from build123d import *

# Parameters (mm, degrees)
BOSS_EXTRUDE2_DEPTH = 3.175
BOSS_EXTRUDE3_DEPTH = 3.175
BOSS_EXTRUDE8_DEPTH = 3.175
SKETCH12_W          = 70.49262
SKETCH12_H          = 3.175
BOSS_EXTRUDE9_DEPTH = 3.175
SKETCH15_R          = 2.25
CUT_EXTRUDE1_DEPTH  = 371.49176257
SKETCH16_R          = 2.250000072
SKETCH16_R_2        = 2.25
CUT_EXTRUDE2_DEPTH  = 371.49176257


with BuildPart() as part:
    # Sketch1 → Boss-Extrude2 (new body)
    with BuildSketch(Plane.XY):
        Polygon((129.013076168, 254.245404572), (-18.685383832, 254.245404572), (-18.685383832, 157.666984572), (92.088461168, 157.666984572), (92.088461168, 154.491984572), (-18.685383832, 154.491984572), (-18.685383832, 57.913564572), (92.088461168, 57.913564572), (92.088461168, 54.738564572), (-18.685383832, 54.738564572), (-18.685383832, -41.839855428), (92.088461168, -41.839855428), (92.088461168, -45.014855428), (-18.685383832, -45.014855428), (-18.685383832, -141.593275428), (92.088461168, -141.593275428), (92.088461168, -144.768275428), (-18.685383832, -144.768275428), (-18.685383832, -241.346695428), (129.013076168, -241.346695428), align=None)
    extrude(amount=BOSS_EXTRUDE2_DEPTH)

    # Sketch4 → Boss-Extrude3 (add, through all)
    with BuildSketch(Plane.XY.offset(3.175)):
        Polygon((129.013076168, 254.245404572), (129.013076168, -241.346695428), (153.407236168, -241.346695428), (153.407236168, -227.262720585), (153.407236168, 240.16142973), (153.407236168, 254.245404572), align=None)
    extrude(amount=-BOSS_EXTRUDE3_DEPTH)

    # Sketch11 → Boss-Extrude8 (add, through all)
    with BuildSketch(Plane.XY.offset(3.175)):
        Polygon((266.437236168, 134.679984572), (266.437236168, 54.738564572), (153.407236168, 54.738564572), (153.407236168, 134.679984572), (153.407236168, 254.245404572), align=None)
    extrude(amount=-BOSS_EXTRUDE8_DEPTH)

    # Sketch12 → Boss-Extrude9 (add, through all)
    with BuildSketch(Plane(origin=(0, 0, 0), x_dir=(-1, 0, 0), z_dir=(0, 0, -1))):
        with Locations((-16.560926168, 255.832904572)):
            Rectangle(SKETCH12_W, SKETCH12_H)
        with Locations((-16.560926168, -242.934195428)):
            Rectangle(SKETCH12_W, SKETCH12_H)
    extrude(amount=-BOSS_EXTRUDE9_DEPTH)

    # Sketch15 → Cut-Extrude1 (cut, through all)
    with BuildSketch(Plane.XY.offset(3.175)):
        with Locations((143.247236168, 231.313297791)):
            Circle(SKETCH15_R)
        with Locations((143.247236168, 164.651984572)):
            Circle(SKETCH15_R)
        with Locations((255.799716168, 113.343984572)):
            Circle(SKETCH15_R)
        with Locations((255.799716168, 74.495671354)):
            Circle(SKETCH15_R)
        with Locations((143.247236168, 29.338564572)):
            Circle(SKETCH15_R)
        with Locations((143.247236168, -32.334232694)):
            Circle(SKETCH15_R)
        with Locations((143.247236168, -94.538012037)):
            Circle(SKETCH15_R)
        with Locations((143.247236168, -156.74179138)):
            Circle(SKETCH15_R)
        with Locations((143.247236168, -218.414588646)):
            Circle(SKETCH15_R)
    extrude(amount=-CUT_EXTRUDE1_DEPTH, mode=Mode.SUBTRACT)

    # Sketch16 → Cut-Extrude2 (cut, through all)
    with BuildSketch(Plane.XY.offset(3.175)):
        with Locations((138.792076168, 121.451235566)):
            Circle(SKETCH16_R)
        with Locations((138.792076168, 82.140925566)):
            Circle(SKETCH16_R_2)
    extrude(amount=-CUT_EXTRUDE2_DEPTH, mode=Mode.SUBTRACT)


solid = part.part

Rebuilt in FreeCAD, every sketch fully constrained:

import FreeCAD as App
import Part
import Sketcher
Q = App.Units.Quantity


def add_polygon(sketch, points):
    """Adds a closed chain of lines whose ends are joined by coincident constraints."""
    first, n = sketch.GeometryCount, len(points)
    for a, b in zip(points, points[1:] + points[:1]):
        sketch.addGeometry(Part.LineSegment(App.Vector(*a, 0), App.Vector(*b, 0)), False)
    for i in range(n):
        sketch.addConstraint(Sketcher.Constraint("Coincident", first + i, 2, first + (i + 1) % n, 1))

doc = App.newDocument("Part")
body = doc.addObject("PartDesign::Body", "Body")

# Sketch on XY plane
sketch1 = body.newObject("Sketcher::SketchObject", "Sketch")
sketch1.AttachmentSupport = (doc.getObject("XY_Plane"), [""])
sketch1.MapMode = "FlatFace"
add_polygon(sketch1, [(129.013076, 254.245405), (-18.685384, 254.245405), (-18.685384, 157.666985), (92.088461, 157.666985), (92.088461, 154.491985), (-18.685384, 154.491985), (-18.685384, 57.913565), (92.088461, 57.913565), (92.088461, 54.738565), (-18.685384, 54.738565), (-18.685384, -41.839855), (92.088461, -41.839855), (92.088461, -45.014855), (-18.685384, -45.014855), (-18.685384, -141.593275), (92.088461, -141.593275), (92.088461, -144.768275), (-18.685384, -144.768275), (-18.685384, -241.346695), (129.013076, -241.346695)])  # lines 0-19
sketch1.addConstraint([
    Sketcher.Constraint("Horizontal", 0),
    Sketcher.Constraint("Vertical", 1),
    Sketcher.Constraint("Horizontal", 2),
    Sketcher.Constraint("Vertical", 3),
    Sketcher.Constraint("Horizontal", 4),
    Sketcher.Constraint("Vertical", 5),
    Sketcher.Constraint("Horizontal", 6),
    Sketcher.Constraint("Vertical", 7),
    Sketcher.Constraint("Horizontal", 8),
    Sketcher.Constraint("Vertical", 9),
    Sketcher.Constraint("Horizontal", 10),
    Sketcher.Constraint("Vertical", 11),
    Sketcher.Constraint("Horizontal", 12),
    Sketcher.Constraint("Vertical", 13),
    Sketcher.Constraint("Horizontal", 14),
    Sketcher.Constraint("Vertical", 15),
    Sketcher.Constraint("Horizontal", 16),
    Sketcher.Constraint("Vertical", 17),
    Sketcher.Constraint("Horizontal", 18),
    Sketcher.Constraint("Vertical", 19),
    Sketcher.Constraint("Vertical", 1, 2, 4, 2),
    Sketcher.Constraint("Vertical", 3, 2, 6, 2),
    Sketcher.Constraint("Vertical", 5, 2, 8, 2),
    Sketcher.Constraint("Vertical", 7, 2, 10, 2),
    Sketcher.Constraint("Vertical", 9, 2, 12, 2),
    Sketcher.Constraint("Vertical", 11, 2, 14, 2),
    Sketcher.Constraint("Vertical", 13, 2, 16, 2),
    Sketcher.Constraint("Equal", 1, 5),
    Sketcher.Constraint("Equal", 3, 7),
    Sketcher.Constraint("Equal", 5, 9),
    Sketcher.Constraint("Equal", 7, 11),
    Sketcher.Constraint("Equal", 9, 13),
    Sketcher.Constraint("Equal", 11, 15),
    Sketcher.Constraint("Equal", 13, 17),
    Sketcher.Constraint("DistanceY", 3, 2, 3, 1, Q("0.125 in")),
    Sketcher.Constraint("DistanceX", 0, 2, 0, 1, Q("5.8149 in")),
    Sketcher.Constraint("DistanceY", 1, 2, 1, 1, Q("3.8023 in")),
    Sketcher.Constraint("DistanceX", 2, 1, 2, 2, Q("110.773845 mm")),
    Sketcher.Constraint("DistanceX", -1, 1, 2, 2, Q("92.088461 mm")),
    Sketcher.Constraint("DistanceY", -1, 1, 0, 2, Q("254.245405 mm")),
])
pad1 = body.newObject("PartDesign::Pad", "Pad")
pad1.Profile = sketch1
pad1.Length = Q("0.125 in")

# Sketch on XY plane
sketch2 = body.newObject("Sketcher::SketchObject", "Sketch001")
sketch2.AttachmentSupport = (doc.getObject("XY_Plane"), [""])
sketch2.MapMode = "FlatFace"
sketch2.AttachmentOffset = App.Placement(App.Vector(0, 0, 0.125 * 25.4), App.Rotation())
add_polygon(sketch2, [(129.013076, 254.245405), (129.013076, -241.346695), (153.407236, -241.346695), (153.407236, 254.245405)])  # lines 0-3
sketch2.addConstraint([
    Sketcher.Constraint("Vertical", 0),
    Sketcher.Constraint("Horizontal", 1),
    Sketcher.Constraint("Vertical", 2),
    Sketcher.Constraint("Horizontal", 3),
    Sketcher.Constraint("DistanceX", 1, 1, 1, 2, Q("0.9604 in")),
    Sketcher.Constraint("DistanceY", 0, 2, 0, 1, Q("19.5115 in")),
    Sketcher.Constraint("DistanceX", -1, 1, 0, 2, Q("129.013076 mm")),
    Sketcher.Constraint("DistanceY", 0, 2, -1, 1, Q("241.346695 mm")),
])
pad2 = body.newObject("PartDesign::Pad", "Pad001")
pad2.Profile = sketch2
pad2.Length = Q("0.125 in")
pad2.Reversed = True

# Sketch on XY plane
sketch3 = body.newObject("Sketcher::SketchObject", "Sketch002")
sketch3.AttachmentSupport = (doc.getObject("XY_Plane"), [""])
sketch3.MapMode = "FlatFace"
sketch3.AttachmentOffset = App.Placement(App.Vector(0, 0, 0.125 * 25.4), App.Rotation())
add_polygon(sketch3, [(266.437236, 54.738565), (266.437236, 134.679985), (153.407236, 254.245405), (153.407236, 54.738565)])  # lines 0-3
sketch3.addConstraint([
    Sketcher.Constraint("Vertical", 0),
    Sketcher.Constraint("Vertical", 2),
    Sketcher.Constraint("Horizontal", 3),
    Sketcher.Constraint("DistanceX", 3, 1, 3, 2, Q("4.45 in")),
    Sketcher.Constraint("DistanceY", 0, 1, 0, 2, Q("3.1473 in")),
    Sketcher.Constraint("DistanceY", 2, 2, 2, 1, Q("7.8546 in")),
    Sketcher.Constraint("DistanceX", -1, 1, 0, 2, Q("266.437236 mm")),
    Sketcher.Constraint("DistanceY", -1, 1, 0, 2, Q("134.679985 mm")),
])
pad3 = body.newObject("PartDesign::Pad", "Pad002")
pad3.Profile = sketch3
pad3.Length = Q("0.125 in")
pad3.Reversed = True

# Sketch on XY plane
sketch4 = body.newObject("Sketcher::SketchObject", "Sketch003")
sketch4.AttachmentSupport = (doc.getObject("XY_Plane"), [""])
sketch4.MapMode = "FlatFace"
add_polygon(sketch4, [(51.807236, 257.420405), (51.807236, 254.245405), (-18.685384, 254.245405), (-18.685384, 257.420405)])  # lines 0-3
add_polygon(sketch4, [(51.807236, -241.346695), (51.807236, -244.521695), (-18.685384, -244.521695), (-18.685384, -241.346695)])  # lines 4-7
sketch4.addConstraint([
    Sketcher.Constraint("Vertical", 0),
    Sketcher.Constraint("Horizontal", 1),
    Sketcher.Constraint("Vertical", 2),
    Sketcher.Constraint("Horizontal", 3),
    Sketcher.Constraint("Vertical", 4),
    Sketcher.Constraint("Horizontal", 5),
    Sketcher.Constraint("Vertical", 6),
    Sketcher.Constraint("Horizontal", 7),
    Sketcher.Constraint("Vertical", 3, 2, 4, 2),
    Sketcher.Constraint("Vertical", 2, 2, 5, 2),
    Sketcher.Constraint("Equal", 2, 4),
    Sketcher.Constraint("DistanceY", 0, 2, 0, 1, Q("0.125 in")),
    Sketcher.Constraint("DistanceX", 1, 2, 1, 1, Q("2.7753 in")),
    Sketcher.Constraint("DistanceY", 4, 2, 0, 2, Q("19.6365 in")),
    Sketcher.Constraint("DistanceX", -1, 1, 0, 2, Q("51.807236 mm")),
    Sketcher.Constraint("DistanceY", -1, 1, 0, 2, Q("254.245405 mm")),
])
pad4 = body.newObject("PartDesign::Pad", "Pad003")
pad4.Profile = sketch4
pad4.Type = "UpToLast"

# Sketch on XY plane
sketch5 = body.newObject("Sketcher::SketchObject", "Sketch004")
sketch5.AttachmentSupport = (doc.getObject("XY_Plane"), [""])
sketch5.MapMode = "FlatFace"
sketch5.AttachmentOffset = App.Placement(App.Vector(0, 0, 0.125 * 25.4), App.Rotation())
sketch5.addGeometry([
    Part.Circle(App.Vector(143.247236, 231.313298, 0), App.Vector(0, 0, 1), 2.25),  # 0
    Part.Circle(App.Vector(143.247236, 164.651985, 0), App.Vector(0, 0, 1), 2.25),  # 1
    Part.Circle(App.Vector(255.799716, 113.343985, 0), App.Vector(0, 0, 1), 2.25),  # 2
    Part.Circle(App.Vector(255.799716, 74.495671, 0), App.Vector(0, 0, 1), 2.25),  # 3
    Part.Circle(App.Vector(143.247236, 29.338565, 0), App.Vector(0, 0, 1), 2.25),  # 4
    Part.Circle(App.Vector(143.247236, -32.334233, 0), App.Vector(0, 0, 1), 2.25),  # 5
    Part.Circle(App.Vector(143.247236, -94.538012, 0), App.Vector(0, 0, 1), 2.25),  # 6
    Part.Circle(App.Vector(143.247236, -156.741791, 0), App.Vector(0, 0, 1), 2.25),  # 7
    Part.Circle(App.Vector(143.247236, -218.414589, 0), App.Vector(0, 0, 1), 2.25),  # 8
], False)
sketch5.addConstraint([
    Sketcher.Constraint("Equal", 0, 1),
    Sketcher.Constraint("Equal", 1, 2),
    Sketcher.Constraint("Equal", 2, 3),
    Sketcher.Constraint("Equal", 3, 4),
    Sketcher.Constraint("Equal", 4, 5),
    Sketcher.Constraint("Equal", 5, 6),
    Sketcher.Constraint("Equal", 6, 7),
    Sketcher.Constraint("Equal", 7, 8),
    Sketcher.Constraint("Vertical", 0, 3, 1, 3),
    Sketcher.Constraint("Vertical", 2, 3, 3, 3),
    Sketcher.Constraint("Vertical", 1, 3, 4, 3),
    Sketcher.Constraint("Vertical", 4, 3, 5, 3),
    Sketcher.Constraint("Vertical", 5, 3, 6, 3),
    Sketcher.Constraint("Vertical", 6, 3, 7, 3),
    Sketcher.Constraint("Vertical", 7, 3, 8, 3),
    Sketcher.Constraint("Diameter", 0, Q("4.5 mm")),
    Sketcher.Constraint("DistanceY", 2, 3, 1, 3, Q("2.02 in")),
    Sketcher.Constraint("DistanceX", 1, 3, 2, 3, Q("4.4312 in")),
    Sketcher.Constraint("DistanceY", 4, 3, 1, 3, Q("5.3273 in")),
    Sketcher.Constraint("DistanceY", 8, 3, 3, 3, Q("11.5319 in")),
    Sketcher.Constraint("DistanceY", -1, 1, 3, 3, Q("74.495671 mm")),
    Sketcher.Constraint("DistanceY", 7, 3, -1, 1, Q("156.741791 mm")),
    Sketcher.Constraint("DistanceY", 5, 3, 0, 3, Q("263.64753 mm")),
    Sketcher.Constraint("DistanceY", 6, 3, 5, 3, Q("62.203779 mm")),
    Sketcher.Constraint("DistanceY", 7, 3, 6, 3, Q("62.203779 mm")),
    Sketcher.Constraint("DistanceX", -1, 1, 0, 3, Q("143.247236 mm")),
    Sketcher.Constraint("DistanceY", -1, 1, 1, 3, Q("164.651985 mm")),
])
pocket1 = body.newObject("PartDesign::Pocket", "Pocket")
pocket1.Profile = sketch5
pocket1.Type = "ThroughAll"

# Sketch on XY plane
sketch6 = body.newObject("Sketcher::SketchObject", "Sketch005")
sketch6.AttachmentSupport = (doc.getObject("XY_Plane"), [""])
sketch6.MapMode = "FlatFace"
sketch6.AttachmentOffset = App.Placement(App.Vector(0, 0, 0.125 * 25.4), App.Rotation())
sketch6.addGeometry([
    Part.Circle(App.Vector(138.792076, 121.451236, 0), App.Vector(0, 0, 1), 2.25),
    Part.Circle(App.Vector(138.792076, 82.140926, 0), App.Vector(0, 0, 1), 2.25),
], False)
sketch6.addConstraint([
    Sketcher.Constraint("Equal", 0, 1),
    Sketcher.Constraint("Vertical", 0, 3, 1, 3),
    Sketcher.Constraint("Diameter", 0, Q("4.5 mm")),
    Sketcher.Constraint("DistanceY", 1, 3, 0, 3, Q("39.31031 mm")),
    Sketcher.Constraint("DistanceX", -1, 1, 0, 3, Q("138.792076 mm")),
    Sketcher.Constraint("DistanceY", -1, 1, 0, 3, Q("121.451236 mm")),
])
pocket2 = body.newObject("PartDesign::Pocket", "Pocket001")
pocket2.Profile = sketch6
pocket2.Type = "ThroughAll"

doc.recompute()
